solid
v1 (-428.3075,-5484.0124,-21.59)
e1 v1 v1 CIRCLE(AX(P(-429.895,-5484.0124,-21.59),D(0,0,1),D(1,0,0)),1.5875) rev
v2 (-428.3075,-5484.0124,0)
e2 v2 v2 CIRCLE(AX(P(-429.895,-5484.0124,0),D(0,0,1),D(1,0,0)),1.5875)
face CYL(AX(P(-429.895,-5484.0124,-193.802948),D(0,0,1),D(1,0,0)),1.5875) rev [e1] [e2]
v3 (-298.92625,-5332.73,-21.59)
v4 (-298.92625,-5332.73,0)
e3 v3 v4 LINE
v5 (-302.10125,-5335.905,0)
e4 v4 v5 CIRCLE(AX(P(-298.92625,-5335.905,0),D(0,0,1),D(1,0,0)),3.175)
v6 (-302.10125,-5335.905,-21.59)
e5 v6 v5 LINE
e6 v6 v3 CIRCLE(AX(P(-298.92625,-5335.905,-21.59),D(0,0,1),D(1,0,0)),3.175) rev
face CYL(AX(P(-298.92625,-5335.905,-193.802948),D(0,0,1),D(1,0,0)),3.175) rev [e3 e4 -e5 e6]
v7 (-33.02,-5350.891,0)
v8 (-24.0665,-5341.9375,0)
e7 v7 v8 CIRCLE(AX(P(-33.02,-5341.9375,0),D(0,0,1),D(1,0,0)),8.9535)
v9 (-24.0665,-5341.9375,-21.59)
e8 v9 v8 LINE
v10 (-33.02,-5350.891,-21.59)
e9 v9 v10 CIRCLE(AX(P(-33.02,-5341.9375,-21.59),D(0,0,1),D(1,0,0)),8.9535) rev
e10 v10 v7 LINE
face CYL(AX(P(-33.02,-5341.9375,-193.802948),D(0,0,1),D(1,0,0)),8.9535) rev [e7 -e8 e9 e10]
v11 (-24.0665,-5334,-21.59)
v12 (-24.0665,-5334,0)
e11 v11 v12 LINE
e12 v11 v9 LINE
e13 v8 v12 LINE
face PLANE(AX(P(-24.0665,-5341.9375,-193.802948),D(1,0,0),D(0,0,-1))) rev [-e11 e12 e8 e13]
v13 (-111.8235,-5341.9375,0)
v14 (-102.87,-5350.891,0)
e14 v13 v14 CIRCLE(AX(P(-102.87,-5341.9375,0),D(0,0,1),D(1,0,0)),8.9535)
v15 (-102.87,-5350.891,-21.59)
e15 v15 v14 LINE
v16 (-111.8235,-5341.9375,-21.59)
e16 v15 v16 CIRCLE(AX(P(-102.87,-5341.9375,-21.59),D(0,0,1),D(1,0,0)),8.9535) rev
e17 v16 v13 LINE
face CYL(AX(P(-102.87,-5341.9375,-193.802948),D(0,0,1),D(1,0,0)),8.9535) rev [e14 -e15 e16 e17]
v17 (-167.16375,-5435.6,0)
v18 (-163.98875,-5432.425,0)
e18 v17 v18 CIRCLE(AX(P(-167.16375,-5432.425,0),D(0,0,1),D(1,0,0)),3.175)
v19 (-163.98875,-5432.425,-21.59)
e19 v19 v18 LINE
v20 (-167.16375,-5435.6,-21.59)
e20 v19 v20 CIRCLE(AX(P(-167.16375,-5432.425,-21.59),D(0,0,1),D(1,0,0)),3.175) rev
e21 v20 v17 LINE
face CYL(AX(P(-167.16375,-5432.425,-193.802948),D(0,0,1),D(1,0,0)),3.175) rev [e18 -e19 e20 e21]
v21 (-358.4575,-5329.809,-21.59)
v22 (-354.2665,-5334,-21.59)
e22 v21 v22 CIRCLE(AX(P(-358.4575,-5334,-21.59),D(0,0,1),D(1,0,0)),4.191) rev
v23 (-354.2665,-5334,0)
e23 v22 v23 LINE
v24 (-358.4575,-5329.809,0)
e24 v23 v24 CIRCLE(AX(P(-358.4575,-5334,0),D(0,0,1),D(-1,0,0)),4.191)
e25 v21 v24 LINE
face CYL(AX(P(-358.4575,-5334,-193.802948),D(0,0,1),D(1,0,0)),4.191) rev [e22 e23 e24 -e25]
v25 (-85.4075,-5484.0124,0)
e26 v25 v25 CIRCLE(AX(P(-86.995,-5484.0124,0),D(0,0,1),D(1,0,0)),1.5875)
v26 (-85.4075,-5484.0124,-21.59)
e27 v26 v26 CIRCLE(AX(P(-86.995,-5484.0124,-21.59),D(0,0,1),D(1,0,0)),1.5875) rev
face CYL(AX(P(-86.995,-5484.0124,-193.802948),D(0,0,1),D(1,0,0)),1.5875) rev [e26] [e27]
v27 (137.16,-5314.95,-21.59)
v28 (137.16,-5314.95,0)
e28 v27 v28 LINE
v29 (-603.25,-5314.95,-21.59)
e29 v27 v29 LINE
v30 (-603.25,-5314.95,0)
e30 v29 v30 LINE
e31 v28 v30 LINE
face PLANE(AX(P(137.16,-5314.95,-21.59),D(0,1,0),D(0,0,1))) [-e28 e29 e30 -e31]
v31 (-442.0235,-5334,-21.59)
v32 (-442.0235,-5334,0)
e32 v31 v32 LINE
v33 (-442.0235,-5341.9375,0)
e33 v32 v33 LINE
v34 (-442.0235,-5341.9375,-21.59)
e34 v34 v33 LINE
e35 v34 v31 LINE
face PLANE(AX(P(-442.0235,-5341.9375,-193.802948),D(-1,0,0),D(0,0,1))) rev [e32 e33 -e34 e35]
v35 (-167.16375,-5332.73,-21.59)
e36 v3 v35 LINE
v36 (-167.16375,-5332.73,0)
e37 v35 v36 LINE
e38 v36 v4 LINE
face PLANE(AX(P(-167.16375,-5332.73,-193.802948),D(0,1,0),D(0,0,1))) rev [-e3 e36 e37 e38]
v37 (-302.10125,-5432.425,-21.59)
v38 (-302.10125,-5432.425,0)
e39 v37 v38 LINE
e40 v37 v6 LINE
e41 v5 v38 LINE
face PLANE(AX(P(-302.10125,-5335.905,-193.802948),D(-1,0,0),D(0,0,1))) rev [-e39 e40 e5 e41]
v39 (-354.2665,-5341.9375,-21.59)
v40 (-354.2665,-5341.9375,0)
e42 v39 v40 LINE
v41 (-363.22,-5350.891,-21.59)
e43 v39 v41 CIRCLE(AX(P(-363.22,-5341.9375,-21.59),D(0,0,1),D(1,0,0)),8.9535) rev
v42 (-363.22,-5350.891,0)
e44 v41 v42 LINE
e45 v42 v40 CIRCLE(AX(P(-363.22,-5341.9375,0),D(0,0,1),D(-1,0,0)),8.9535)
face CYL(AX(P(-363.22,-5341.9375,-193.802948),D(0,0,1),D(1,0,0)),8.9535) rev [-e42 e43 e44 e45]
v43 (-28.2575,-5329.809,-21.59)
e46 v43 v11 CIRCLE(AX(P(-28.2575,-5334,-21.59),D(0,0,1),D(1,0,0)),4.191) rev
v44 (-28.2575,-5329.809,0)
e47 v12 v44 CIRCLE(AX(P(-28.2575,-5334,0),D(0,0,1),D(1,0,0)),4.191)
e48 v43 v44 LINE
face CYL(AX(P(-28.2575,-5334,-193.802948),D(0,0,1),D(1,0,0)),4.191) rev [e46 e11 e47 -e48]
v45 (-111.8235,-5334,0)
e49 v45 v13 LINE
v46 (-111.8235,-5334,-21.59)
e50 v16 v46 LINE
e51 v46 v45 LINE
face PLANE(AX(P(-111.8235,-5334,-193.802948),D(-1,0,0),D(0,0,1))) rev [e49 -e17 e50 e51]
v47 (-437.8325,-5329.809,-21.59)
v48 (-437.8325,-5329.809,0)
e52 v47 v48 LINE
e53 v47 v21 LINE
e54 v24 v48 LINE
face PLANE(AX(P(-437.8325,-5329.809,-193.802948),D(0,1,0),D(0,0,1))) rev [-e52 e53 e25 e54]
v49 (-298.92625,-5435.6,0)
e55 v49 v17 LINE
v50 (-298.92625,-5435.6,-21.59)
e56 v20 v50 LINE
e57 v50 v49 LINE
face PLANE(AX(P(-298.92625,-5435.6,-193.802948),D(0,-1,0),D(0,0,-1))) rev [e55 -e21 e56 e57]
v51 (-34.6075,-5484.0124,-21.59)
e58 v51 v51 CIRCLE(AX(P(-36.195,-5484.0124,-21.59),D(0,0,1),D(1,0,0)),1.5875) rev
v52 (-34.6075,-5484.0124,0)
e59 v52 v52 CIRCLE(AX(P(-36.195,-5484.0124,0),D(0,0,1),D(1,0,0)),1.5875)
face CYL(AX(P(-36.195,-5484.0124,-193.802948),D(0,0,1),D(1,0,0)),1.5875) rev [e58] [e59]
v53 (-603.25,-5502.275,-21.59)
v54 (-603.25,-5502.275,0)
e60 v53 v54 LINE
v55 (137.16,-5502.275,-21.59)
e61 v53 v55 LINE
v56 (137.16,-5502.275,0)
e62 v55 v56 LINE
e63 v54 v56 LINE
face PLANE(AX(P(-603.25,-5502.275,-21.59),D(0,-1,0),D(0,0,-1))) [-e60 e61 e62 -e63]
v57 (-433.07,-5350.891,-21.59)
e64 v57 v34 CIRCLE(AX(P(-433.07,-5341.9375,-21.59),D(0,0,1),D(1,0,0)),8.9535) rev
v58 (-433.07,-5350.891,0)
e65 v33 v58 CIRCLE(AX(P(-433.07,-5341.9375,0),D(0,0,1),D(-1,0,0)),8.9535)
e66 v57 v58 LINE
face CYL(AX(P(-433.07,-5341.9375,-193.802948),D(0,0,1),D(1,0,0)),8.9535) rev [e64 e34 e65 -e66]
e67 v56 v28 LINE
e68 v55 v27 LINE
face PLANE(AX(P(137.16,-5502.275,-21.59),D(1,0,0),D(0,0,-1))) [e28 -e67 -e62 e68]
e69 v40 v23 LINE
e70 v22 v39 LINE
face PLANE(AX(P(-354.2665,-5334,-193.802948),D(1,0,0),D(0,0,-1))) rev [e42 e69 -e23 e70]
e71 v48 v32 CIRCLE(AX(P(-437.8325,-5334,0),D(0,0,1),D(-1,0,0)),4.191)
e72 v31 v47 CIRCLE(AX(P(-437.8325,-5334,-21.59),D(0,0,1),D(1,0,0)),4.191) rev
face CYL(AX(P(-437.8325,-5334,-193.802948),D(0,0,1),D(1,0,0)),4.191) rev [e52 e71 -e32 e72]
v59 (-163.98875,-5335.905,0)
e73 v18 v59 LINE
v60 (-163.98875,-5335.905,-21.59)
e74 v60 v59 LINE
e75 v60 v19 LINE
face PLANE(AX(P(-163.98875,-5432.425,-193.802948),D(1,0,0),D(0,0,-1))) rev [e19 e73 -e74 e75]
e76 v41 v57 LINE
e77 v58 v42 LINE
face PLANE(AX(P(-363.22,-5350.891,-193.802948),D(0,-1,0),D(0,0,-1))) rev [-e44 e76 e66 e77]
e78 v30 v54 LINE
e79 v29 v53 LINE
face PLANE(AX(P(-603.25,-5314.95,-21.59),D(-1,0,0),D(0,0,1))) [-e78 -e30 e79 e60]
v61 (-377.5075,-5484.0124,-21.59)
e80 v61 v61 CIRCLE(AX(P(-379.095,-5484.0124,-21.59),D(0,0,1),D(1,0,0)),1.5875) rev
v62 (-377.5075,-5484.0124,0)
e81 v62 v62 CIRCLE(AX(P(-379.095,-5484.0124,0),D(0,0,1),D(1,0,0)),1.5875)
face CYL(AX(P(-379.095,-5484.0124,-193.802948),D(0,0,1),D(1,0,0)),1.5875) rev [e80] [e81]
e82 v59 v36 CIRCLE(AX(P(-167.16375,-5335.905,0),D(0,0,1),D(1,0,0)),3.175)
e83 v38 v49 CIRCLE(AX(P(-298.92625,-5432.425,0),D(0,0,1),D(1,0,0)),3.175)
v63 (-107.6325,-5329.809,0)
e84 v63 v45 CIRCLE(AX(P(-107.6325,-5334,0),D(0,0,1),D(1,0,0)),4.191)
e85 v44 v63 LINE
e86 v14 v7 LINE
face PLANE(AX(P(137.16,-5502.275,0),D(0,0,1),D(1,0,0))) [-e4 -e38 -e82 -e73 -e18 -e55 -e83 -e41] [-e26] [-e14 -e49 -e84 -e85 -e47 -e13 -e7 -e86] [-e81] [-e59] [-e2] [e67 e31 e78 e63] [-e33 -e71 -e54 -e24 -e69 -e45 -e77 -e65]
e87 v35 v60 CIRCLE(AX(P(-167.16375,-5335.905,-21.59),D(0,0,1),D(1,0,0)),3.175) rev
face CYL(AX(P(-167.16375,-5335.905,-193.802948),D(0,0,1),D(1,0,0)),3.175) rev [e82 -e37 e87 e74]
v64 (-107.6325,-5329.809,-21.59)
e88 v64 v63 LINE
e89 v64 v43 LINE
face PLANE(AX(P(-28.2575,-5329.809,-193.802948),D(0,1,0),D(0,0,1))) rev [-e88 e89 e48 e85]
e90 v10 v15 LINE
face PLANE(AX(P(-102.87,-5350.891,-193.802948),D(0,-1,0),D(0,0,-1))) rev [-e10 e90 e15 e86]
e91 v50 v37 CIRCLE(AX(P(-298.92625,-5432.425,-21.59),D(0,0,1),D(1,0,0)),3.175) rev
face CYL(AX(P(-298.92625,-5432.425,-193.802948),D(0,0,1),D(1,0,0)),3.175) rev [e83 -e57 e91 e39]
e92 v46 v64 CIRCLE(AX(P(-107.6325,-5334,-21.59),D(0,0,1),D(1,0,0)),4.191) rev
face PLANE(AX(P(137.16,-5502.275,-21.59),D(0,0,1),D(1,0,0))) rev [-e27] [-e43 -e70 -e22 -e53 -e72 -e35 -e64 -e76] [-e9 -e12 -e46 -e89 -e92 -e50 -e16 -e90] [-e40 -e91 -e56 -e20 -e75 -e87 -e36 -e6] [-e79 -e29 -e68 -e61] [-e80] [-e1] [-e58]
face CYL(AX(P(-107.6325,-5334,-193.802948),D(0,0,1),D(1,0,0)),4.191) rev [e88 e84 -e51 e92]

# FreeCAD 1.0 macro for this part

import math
import FreeCAD as App
import Part
import Sketcher
from FreeCAD import Vector
Q = App.Units.Quantity


def add_polygon(sketch, points):
    """Adds a closed chain of lines whose ends are joined by coincident constraints."""
    first, n = sketch.GeometryCount, len(points)
    for a, b in zip(points, points[1:] + points[:1]):
        sketch.addGeometry(Part.LineSegment(App.Vector(*a, 0), App.Vector(*b, 0)), False)
    for i in range(n):
        sketch.addConstraint(Sketcher.Constraint("Coincident", first + i, 2, first + (i + 1) % n, 1))

doc = App.newDocument("Part")
body = doc.addObject("PartDesign::Body", "Body")

# Sketch on XY plane
sketch1 = body.newObject("Sketcher::SketchObject", "Sketch")
sketch1.AttachmentSupport = (doc.getObject("XY_Plane"), [""])
sketch1.MapMode = "FlatFace"
add_polygon(sketch1, [(-603, -5315), (-603, -5502), (137, -5502), (137, -5315)])  # lines 0-3
sketch1.addConstraint(Sketcher.Constraint("Vertical", 0))
sketch1.addConstraint(Sketcher.Constraint("Horizontal", 1))
sketch1.addConstraint(Sketcher.Constraint("Vertical", 2))
sketch1.addConstraint(Sketcher.Constraint("Horizontal", 3))
sketch1.addConstraint(Sketcher.Constraint("DistanceX", 1, 1, 1, 2, Q("29.15 in")))
sketch1.addConstraint(Sketcher.Constraint("DistanceX", -1, 1, 1, 2, Q("5.4 in")))
sketch1.addConstraint(Sketcher.Constraint("DistanceY", 0, 2, 0, 1, Q("7.375 in")))
sketch1.addConstraint(Sketcher.Constraint("DistanceY", 2, 2, -1, 1, Q("209.25 in")))
pad1 = body.newObject("PartDesign::Pad", "Pad")
pad1.Profile = sketch1
pad1.Length = Q("0.85 in")
pad1.Reversed = True

# Sketch on XY plane
sketch2 = body.newObject("Sketcher::SketchObject", "Sketch001")
sketch2.AttachmentSupport = (doc.getObject("XY_Plane"), [""])
sketch2.MapMode = "FlatFace"
sketch2.addGeometry(Part.Circle(Vector(-429.9, -5484, 0), Vector(0, 0, 1), 1.6), False)
sketch2.addGeometry(Part.Circle(Vector(-379.1, -5484, 0), Vector(0, 0, 1), 1.6), False)
sketch2.addGeometry(Part.Circle(Vector(-87, -5484, 0), Vector(0, 0, 1), 1.6), False)
sketch2.addGeometry(Part.Circle(Vector(-36.2, -5484, 0), Vector(0, 0, 1), 1.6), False)
sketch2.addGeometry(Part.LineSegment(Vector(-302.1, -5335.9, 0), Vector(-302.1, -5432.4, 0)), False)
sketch2.addGeometry(Part.ArcOfCircle(Part.Circle(Vector(-298.9, -5432.4, 0), Vector(0, 0, 1), 3.2), math.radians(-180), math.radians(-90)), False)
sketch2.addGeometry(Part.LineSegment(Vector(-298.9, -5435.6, 0), Vector(-167.2, -5435.6, 0)), False)
sketch2.addGeometry(Part.ArcOfCircle(Part.Circle(Vector(-167.2, -5432.4, 0), Vector(0, 0, 1), 3.2), math.radians(-90), math.radians(0)), False)
sketch2.addGeometry(Part.LineSegment(Vector(-164, -5432.4, 0), Vector(-164, -5335.9, 0)), False)
sketch2.addGeometry(Part.ArcOfCircle(Part.Circle(Vector(-167.2, -5335.9, 0), Vector(0, 0, 1), 3.2), math.radians(0), math.radians(90)), False)
sketch2.addGeometry(Part.LineSegment(Vector(-167.2, -5332.7, 0), Vector(-298.9, -5332.7, 0)), False)
sketch2.addGeometry(Part.ArcOfCircle(Part.Circle(Vector(-298.9, -5335.9, 0), Vector(0, 0, 1), 3.2), math.radians(90), math.radians(180)), False)
sketch2.addGeometry(Part.LineSegment(Vector(-354.3, -5341.9, 0), Vector(-354.3, -5334, 0)), False)
sketch2.addGeometry(Part.ArcOfCircle(Part.Circle(Vector(-358.5, -5334, 0), Vector(0, 0, 1), 4.2), math.radians(0), math.radians(90)), False)
sketch2.addGeometry(Part.LineSegment(Vector(-358.5, -5329.8, 0), Vector(-437.8, -5329.8, 0)), False)
sketch2.addGeometry(Part.ArcOfCircle(Part.Circle(Vector(-437.8, -5334, 0), Vector(0, 0, 1), 4.2), math.radians(90), math.radians(180)), False)
sketch2.addGeometry(Part.LineSegment(Vector(-442, -5334, 0), Vector(-442, -5341.9, 0)), False)
sketch2.addGeometry(Part.ArcOfCircle(Part.Circle(Vector(-433.1, -5341.9, 0), Vector(0, 0, 1), 9), math.radians(-180), math.radians(-90)), False)
sketch2.addGeometry(Part.LineSegment(Vector(-433.1, -5350.9, 0), Vector(-363.2, -5350.9, 0)), False)
sketch2.addGeometry(Part.ArcOfCircle(Part.Circle(Vector(-363.2, -5341.9, 0), Vector(0, 0, 1), 9), math.radians(-90), math.radians(0)), False)
sketch2.addGeometry(Part.LineSegment(Vector(-102.9, -5350.9, 0), Vector(-33, -5350.9, 0)), False)
sketch2.addGeometry(Part.ArcOfCircle(Part.Circle(Vector(-33, -5341.9, 0), Vector(0, 0, 1), 9), math.radians(-90), math.radians(0)), False)
sketch2.addGeometry(Part.LineSegment(Vector(-24.1, -5341.9, 0), Vector(-24.1, -5334, 0)), False)
sketch2.addGeometry(Part.ArcOfCircle(Part.Circle(Vector(-28.3, -5334, 0), Vector(0, 0, 1), 4.2), math.radians(0), math.radians(90)), False)
sketch2.addGeometry(Part.LineSegment(Vector(-28.3, -5329.8, 0), Vector(-107.6, -5329.8, 0)), False)
sketch2.addGeometry(Part.ArcOfCircle(Part.Circle(Vector(-107.6, -5334, 0), Vector(0, 0, 1), 4.2), math.radians(90), math.radians(180)), False)
sketch2.addGeometry(Part.LineSegment(Vector(-111.8, -5334, 0), Vector(-111.8, -5341.9, 0)), False)
sketch2.addGeometry(Part.ArcOfCircle(Part.Circle(Vector(-102.9, -5341.9, 0), Vector(0, 0, 1), 9), math.radians(-180), math.radians(-90)), False)
sketch2.addConstraint(Sketcher.Constraint("Tangent", 4, 2, 5, 1))
sketch2.addConstraint(Sketcher.Constraint("Tangent", 5, 2, 6, 1))
sketch2.addConstraint(Sketcher.Constraint("Tangent", 6, 2, 7, 1))
sketch2.addConstraint(Sketcher.Constraint("Tangent", 7, 2, 8, 1))
sketch2.addConstraint(Sketcher.Constraint("Tangent", 8, 2, 9, 1))
sketch2.addConstraint(Sketcher.Constraint("Tangent", 9, 2, 10, 1))
sketch2.addConstraint(Sketcher.Constraint("Tangent", 10, 2, 11, 1))
sketch2.addConstraint(Sketcher.Constraint("Tangent", 11, 2, 4, 1))
sketch2.addConstraint(Sketcher.Constraint("Tangent", 12, 2, 13, 1))
sketch2.addConstraint(Sketcher.Constraint("Tangent", 13, 2, 14, 1))
sketch2.addConstraint(Sketcher.Constraint("Tangent", 14, 2, 15, 1))
sketch2.addConstraint(Sketcher.Constraint("Tangent", 15, 2, 16, 1))
sketch2.addConstraint(Sketcher.Constraint("Tangent", 16, 2, 17, 1))
sketch2.addConstraint(Sketcher.Constraint("Tangent", 17, 2, 18, 1))
sketch2.addConstraint(Sketcher.Constraint("Tangent", 18, 2, 19, 1))
sketch2.addConstraint(Sketcher.Constraint("Tangent", 19, 2, 12, 1))
sketch2.addConstraint(Sketcher.Constraint("Tangent", 20, 2, 21, 1))
sketch2.addConstraint(Sketcher.Constraint("Tangent", 21, 2, 22, 1))
sketch2.addConstraint(Sketcher.Constraint("Tangent", 22, 2, 23, 1))
sketch2.addConstraint(Sketcher.Constraint("Tangent", 23, 2, 24, 1))
sketch2.addConstraint(Sketcher.Constraint("Tangent", 24, 2, 25, 1))
sketch2.addConstraint(Sketcher.Constraint("Tangent", 25, 2, 26, 1))
sketch2.addConstraint(Sketcher.Constraint("Tangent", 26, 2, 27, 1))
sketch2.addConstraint(Sketcher.Constraint("Tangent", 27, 2, 20, 1))
sketch2.addConstraint(Sketcher.Constraint("Vertical", 4))
sketch2.addConstraint(Sketcher.Constraint("Horizontal", 6))
sketch2.addConstraint(Sketcher.Constraint("Vertical", 8))
sketch2.addConstraint(Sketcher.Constraint("Horizontal", 10))
sketch2.addConstraint(Sketcher.Constraint("Vertical", 12))
sketch2.addConstraint(Sketcher.Constraint("Horizontal", 14))
sketch2.addConstraint(Sketcher.Constraint("Vertical", 16))
sketch2.addConstraint(Sketcher.Constraint("Horizontal", 18))
sketch2.addConstraint(Sketcher.Constraint("Horizontal", 20))
sketch2.addConstraint(Sketcher.Constraint("Vertical", 22))
sketch2.addConstraint(Sketcher.Constraint("Horizontal", 24))
sketch2.addConstraint(Sketcher.Constraint("Vertical", 26))
sketch2.addConstraint(Sketcher.Constraint("Equal", 0, 1))
sketch2.addConstraint(Sketcher.Constraint("Equal", 1, 2))
sketch2.addConstraint(Sketcher.Constraint("Equal", 2, 3))
sketch2.addConstraint(Sketcher.Constraint("Equal", 5, 7))
sketch2.addConstraint(Sketcher.Constraint("Equal", 7, 9))
sketch2.addConstraint(Sketcher.Constraint("Equal", 9, 11))
sketch2.addConstraint(Sketcher.Constraint("Equal", 13, 15))
sketch2.addConstraint(Sketcher.Constraint("Equal", 17, 19))
sketch2.addConstraint(Sketcher.Constraint("Equal", 19, 21))
sketch2.addConstraint(Sketcher.Constraint("Equal", 15, 23))
sketch2.addConstraint(Sketcher.Constraint("Equal", 23, 25))
sketch2.addConstraint(Sketcher.Constraint("Equal", 21, 27))
sketch2.addConstraint(Sketcher.Constraint("Horizontal", 0, 3, 1, 3))
sketch2.addConstraint(Sketcher.Constraint("Horizontal", 1, 3, 2, 3))
sketch2.addConstraint(Sketcher.Constraint("Horizontal", 2, 3, 3, 3))
sketch2.addConstraint(Sketcher.Constraint("Horizontal", 19, 3, 21, 3))
sketch2.addConstraint(Sketcher.Constraint("Horizontal", 15, 3, 23, 3))
sketch2.addConstraint(Sketcher.Constraint("Equal", 18, 20))
sketch2.addConstraint(Sketcher.Constraint("Diameter", 0, Q("0.125 in")))
sketch2.addConstraint(Sketcher.Constraint("DistanceY", 4, 2, 4, 1, Q("3.8 in")))
sketch2.addConstraint(Sketcher.Constraint("DistanceY", 13, 3, -1, 1, Q("210 in")))
sketch2.addConstraint(Sketcher.Constraint("DistanceY", 5, 2, -1, 1, Q("214 in")))
sketch2.addConstraint(Sketcher.Constraint("Radius", 5, Q("0.125 in")))
sketch2.addConstraint(Sketcher.Constraint("Radius", 13, Q("0.165 in")))
sketch2.addConstraint(Sketcher.Constraint("DistanceX", 0, 3, 1, 3, Q("2 in")))
sketch2.addConstraint(Sketcher.Constraint("DistanceX", 2, 3, 3, 3, Q("2 in")))
sketch2.addConstraint(Sketcher.Constraint("DistanceX", 18, 1, 18, 2, Q("2.75 in")))
sketch2.addConstraint(Sketcher.Constraint("DistanceX", 19, 3, -1, 1, Q("14.3 in")))
sketch2.addConstraint(Sketcher.Constraint("DistanceX", 21, 3, -1, 1, Q("1.3 in")))
sketch2.addConstraint(Sketcher.Constraint("Radius", 17, Q("0.3525 in")))
sketch2.addConstraint(Sketcher.Constraint("DistanceX", 1, 3, 2, 3, Q("11.5 in")))
sketch2.addConstraint(Sketcher.Constraint("DistanceX", 6, 1, 6, 2, Q("5.1875 in")))
sketch2.addConstraint(Sketcher.Constraint("DistanceY", 12, 1, 12, 2, Q("0.3125 in")))
sketch2.addConstraint(Sketcher.Constraint("DistanceX", 0, 3, -1, 1, Q("16.925 in")))
sketch2.addConstraint(Sketcher.Constraint("DistanceY", 0, 3, -1, 1, Q("215.906 in")))
sketch2.addConstraint(Sketcher.Constraint("DistanceX", 1, 3, 5, 3, Q("3.15625 in")))
pocket1 = body.newObject("PartDesign::Pocket", "Pocket")
pocket1.Profile = sketch2
pocket1.Length = Q("0.85 in")

doc.recompute()
